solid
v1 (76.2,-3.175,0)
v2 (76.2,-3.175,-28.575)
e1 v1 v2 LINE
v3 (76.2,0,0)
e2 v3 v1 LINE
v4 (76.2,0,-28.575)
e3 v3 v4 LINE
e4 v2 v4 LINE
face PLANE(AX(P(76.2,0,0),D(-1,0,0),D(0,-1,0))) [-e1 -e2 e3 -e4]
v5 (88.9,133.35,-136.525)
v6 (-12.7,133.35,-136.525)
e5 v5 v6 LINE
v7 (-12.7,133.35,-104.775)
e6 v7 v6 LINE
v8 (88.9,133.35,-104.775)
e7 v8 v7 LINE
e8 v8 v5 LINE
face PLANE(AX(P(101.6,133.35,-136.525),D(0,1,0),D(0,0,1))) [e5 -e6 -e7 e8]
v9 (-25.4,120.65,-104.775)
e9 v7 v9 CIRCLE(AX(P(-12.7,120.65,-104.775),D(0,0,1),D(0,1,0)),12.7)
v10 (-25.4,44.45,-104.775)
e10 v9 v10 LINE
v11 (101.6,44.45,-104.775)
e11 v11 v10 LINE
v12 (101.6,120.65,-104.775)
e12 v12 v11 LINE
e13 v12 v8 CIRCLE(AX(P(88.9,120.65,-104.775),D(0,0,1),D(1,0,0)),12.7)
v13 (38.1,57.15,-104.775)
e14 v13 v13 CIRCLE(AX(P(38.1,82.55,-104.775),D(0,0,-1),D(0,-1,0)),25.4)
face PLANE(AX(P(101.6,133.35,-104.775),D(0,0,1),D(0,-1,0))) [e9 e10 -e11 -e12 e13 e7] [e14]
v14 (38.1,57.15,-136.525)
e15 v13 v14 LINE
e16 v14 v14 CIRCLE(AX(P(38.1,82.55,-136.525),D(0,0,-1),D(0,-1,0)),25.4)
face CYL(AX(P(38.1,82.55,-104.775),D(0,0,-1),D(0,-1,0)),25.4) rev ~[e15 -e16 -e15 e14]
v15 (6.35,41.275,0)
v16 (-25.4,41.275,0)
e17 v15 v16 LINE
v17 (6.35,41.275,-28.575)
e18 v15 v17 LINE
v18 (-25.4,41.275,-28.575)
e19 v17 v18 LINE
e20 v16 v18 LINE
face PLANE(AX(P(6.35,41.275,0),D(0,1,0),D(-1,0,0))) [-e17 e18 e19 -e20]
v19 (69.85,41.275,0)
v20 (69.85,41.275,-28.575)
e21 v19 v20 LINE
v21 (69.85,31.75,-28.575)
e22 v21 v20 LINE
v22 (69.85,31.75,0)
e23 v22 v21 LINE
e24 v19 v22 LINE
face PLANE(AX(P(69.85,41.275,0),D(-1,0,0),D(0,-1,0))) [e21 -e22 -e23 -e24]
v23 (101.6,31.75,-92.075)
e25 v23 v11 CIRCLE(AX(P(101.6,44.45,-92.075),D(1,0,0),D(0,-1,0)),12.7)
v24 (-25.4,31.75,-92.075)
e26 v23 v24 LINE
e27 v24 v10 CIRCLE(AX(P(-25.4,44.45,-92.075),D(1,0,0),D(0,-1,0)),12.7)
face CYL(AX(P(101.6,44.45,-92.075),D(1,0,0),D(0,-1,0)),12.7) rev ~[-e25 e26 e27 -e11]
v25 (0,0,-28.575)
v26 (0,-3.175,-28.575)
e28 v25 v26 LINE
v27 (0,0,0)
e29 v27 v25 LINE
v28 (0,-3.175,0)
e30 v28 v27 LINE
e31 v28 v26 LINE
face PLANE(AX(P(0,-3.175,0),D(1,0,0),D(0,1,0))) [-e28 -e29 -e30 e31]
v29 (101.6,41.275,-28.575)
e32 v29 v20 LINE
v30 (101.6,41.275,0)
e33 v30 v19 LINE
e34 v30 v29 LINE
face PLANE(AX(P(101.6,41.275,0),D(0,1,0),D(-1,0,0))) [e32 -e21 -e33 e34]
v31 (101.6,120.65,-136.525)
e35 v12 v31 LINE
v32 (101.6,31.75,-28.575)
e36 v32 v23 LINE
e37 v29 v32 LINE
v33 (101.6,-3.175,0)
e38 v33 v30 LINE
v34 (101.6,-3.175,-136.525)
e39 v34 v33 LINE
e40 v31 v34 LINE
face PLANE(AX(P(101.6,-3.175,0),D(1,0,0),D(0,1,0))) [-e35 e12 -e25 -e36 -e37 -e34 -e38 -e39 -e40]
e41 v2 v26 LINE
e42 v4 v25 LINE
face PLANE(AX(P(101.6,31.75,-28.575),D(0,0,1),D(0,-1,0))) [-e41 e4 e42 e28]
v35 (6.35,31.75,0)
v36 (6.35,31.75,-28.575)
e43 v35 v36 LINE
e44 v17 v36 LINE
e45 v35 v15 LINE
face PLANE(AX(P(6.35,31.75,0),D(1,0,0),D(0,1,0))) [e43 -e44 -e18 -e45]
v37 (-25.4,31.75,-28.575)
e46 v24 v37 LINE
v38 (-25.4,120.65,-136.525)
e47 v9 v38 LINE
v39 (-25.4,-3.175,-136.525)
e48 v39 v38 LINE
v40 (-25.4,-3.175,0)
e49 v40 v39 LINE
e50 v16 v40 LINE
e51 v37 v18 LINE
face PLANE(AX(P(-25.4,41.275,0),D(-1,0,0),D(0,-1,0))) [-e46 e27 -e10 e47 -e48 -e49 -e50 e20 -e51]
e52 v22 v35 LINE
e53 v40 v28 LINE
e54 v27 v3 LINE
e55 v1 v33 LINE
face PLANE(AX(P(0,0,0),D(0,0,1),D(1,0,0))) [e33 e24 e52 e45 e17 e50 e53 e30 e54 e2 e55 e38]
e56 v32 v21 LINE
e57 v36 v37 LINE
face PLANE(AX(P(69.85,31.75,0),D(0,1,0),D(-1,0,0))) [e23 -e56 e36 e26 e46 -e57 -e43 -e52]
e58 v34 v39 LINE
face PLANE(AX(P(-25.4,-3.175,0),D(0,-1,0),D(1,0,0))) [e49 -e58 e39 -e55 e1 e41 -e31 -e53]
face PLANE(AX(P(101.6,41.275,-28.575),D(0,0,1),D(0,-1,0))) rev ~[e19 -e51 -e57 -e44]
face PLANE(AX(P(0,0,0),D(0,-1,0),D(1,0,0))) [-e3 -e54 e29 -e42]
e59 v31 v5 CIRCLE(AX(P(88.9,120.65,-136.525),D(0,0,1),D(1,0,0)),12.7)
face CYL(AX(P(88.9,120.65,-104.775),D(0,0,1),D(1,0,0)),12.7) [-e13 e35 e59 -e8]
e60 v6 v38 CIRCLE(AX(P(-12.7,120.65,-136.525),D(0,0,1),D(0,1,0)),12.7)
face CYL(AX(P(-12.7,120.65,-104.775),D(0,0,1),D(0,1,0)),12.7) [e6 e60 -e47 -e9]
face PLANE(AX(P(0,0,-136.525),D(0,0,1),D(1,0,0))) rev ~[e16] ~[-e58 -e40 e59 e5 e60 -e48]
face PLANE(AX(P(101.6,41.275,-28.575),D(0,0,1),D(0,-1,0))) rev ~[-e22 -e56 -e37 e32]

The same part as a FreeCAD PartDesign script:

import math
import FreeCAD as App
import Part
import Sketcher
from FreeCAD import Vector
Q = App.Units.Quantity

doc = App.newDocument("Part")
params = doc.addObject("Spreadsheet::Sheet", "Params")
for row, (alias, value) in enumerate([
    ("sketch1_width", "3 in"),
    ("sketch1_width2", "1 in"),
    ("sketch1_width3", "2.5 in"),
    ("sketch1_height", "1.75 in"),
    ("sketch1_height2", "0.375 in"),
    ("pad1_length", "5.375 in"),
    ("sketch2_width", "0.375 in"),
    ("sketch2_height", "4.25 in"),
    ("sketch3_height", "1.25 in"),
    ("sketch3_width", "5.375 in"),
    ("pad2_length", "5 in"),
    ("sketch4_radius", "0.5 in"),
    ("sketch4_width", "3.5 in"),
    ("sketch4_height", "2.5 in"),
    ("sketch4_height2", "4.25 in"),
    ("sketch4_width2", "1.375 in"),
    ("pad3_length", "5 in"),
    ("sketch5_radius", "0.5 in"),
    ("sketch6_radius", "0.5 in"),
    ("sketch7_diameter", "2 in"),
    ("hole_diameter", "2 in"),
], start=1):
    params.set(f"A{row}", alias)
    params.set(f"B{row}", "=" + value)
    params.setAlias(f"B{row}", alias)

body = doc.addObject("PartDesign::Body", "Body")

sketch1 = doc.addObject("Sketcher::SketchObject", "Sketch")
body.addObject(sketch1)
sketch1.AttachmentSupport = (doc.XY_Plane, [""])
sketch1.MapMode = "FlatFace"
sketch1.addGeometry(Part.LineSegment(Vector(0, -3.2, 0), Vector(0, 0, 0)), False)
sketch1.addGeometry(Part.LineSegment(Vector(0, 0, 0), Vector(76.2, 0, 0)), False)
sketch1.addGeometry(Part.LineSegment(Vector(76.2, 0, 0), Vector(76.2, -3.2, 0)), False)
sketch1.addGeometry(Part.LineSegment(Vector(76.2, -3.2, 0), Vector(101.6, -3.2, 0)), False)
sketch1.addGeometry(Part.LineSegment(Vector(101.6, -3.2, 0), Vector(101.6, 41.3, 0)), False)
sketch1.addGeometry(Part.LineSegment(Vector(101.6, 41.3, 0), Vector(69.8, 41.3, 0)), False)
sketch1.addGeometry(Part.LineSegment(Vector(69.8, 41.3, 0), Vector(69.8, 31.8, 0)), False)
sketch1.addGeometry(Part.LineSegment(Vector(69.8, 31.8, 0), Vector(6.3, 31.8, 0)), False)
sketch1.addGeometry(Part.LineSegment(Vector(6.3, 31.8, 0), Vector(6.3, 41.3, 0)), False)
sketch1.addGeometry(Part.LineSegment(Vector(6.3, 41.3, 0), Vector(-25.4, 41.3, 0)), False)
sketch1.addGeometry(Part.LineSegment(Vector(-25.4, 41.3, 0), Vector(-25.4, -3.2, 0)), False)
sketch1.addGeometry(Part.LineSegment(Vector(-25.4, -3.2, 0), Vector(0, -3.2, 0)), False)
sketch1.addConstraint(Sketcher.Constraint("Coincident", 0, 2, 1, 1))
sketch1.addConstraint(Sketcher.Constraint("Coincident", 1, 2, 2, 1))
sketch1.addConstraint(Sketcher.Constraint("Coincident", 2, 2, 3, 1))
sketch1.addConstraint(Sketcher.Constraint("Coincident", 3, 2, 4, 1))
sketch1.addConstraint(Sketcher.Constraint("Coincident", 4, 2, 5, 1))
sketch1.addConstraint(Sketcher.Constraint("Coincident", 5, 2, 6, 1))
sketch1.addConstraint(Sketcher.Constraint("Coincident", 6, 2, 7, 1))
sketch1.addConstraint(Sketcher.Constraint("Coincident", 7, 2, 8, 1))
sketch1.addConstraint(Sketcher.Constraint("Coincident", 8, 2, 9, 1))
sketch1.addConstraint(Sketcher.Constraint("Coincident", 9, 2, 10, 1))
sketch1.addConstraint(Sketcher.Constraint("Coincident", 10, 2, 11, 1))
sketch1.addConstraint(Sketcher.Constraint("Coincident", 11, 2, 0, 1))
sketch1.addConstraint(Sketcher.Constraint("Vertical", 0))
sketch1.addConstraint(Sketcher.Constraint("Horizontal", 1))
sketch1.addConstraint(Sketcher.Constraint("Vertical", 2))
sketch1.addConstraint(Sketcher.Constraint("Horizontal", 3))
sketch1.addConstraint(Sketcher.Constraint("Vertical", 4))
sketch1.addConstraint(Sketcher.Constraint("Horizontal", 5))
sketch1.addConstraint(Sketcher.Constraint("Vertical", 6))
sketch1.addConstraint(Sketcher.Constraint("Horizontal", 7))
sketch1.addConstraint(Sketcher.Constraint("Vertical", 8))
sketch1.addConstraint(Sketcher.Constraint("Horizontal", 9))
sketch1.addConstraint(Sketcher.Constraint("Vertical", 10))
sketch1.addConstraint(Sketcher.Constraint("Horizontal", 11))
sketch1.addConstraint(Sketcher.Constraint("Coincident", 0, 2, -1, 1))
sketch1.addConstraint(Sketcher.Constraint("Horizontal", 5, 2, 8, 2))
sketch1.addConstraint(Sketcher.Constraint("Horizontal", 3, 2, 10, 2))
sketch1.addConstraint(Sketcher.Constraint("Equal", 5, 9))
sketch1.addConstraint(Sketcher.Constraint("Equal", 3, 11))
sketch1.addConstraint(Sketcher.Constraint("DistanceX", 1, 1, 1, 2, Q("3 in")))
sketch1.addConstraint(Sketcher.Constraint("DistanceX", 3, 1, 3, 2, Q("1 in")))
sketch1.addConstraint(Sketcher.Constraint("DistanceX", 7, 2, 7, 1, Q("2.5 in")))
sketch1.addConstraint(Sketcher.Constraint("DistanceY", 4, 1, 4, 2, Q("1.75 in")))
sketch1.addConstraint(Sketcher.Constraint("DistanceY", 6, 2, 6, 1, Q("0.375 in")))
sketch1.addConstraint(Sketcher.Constraint("DistanceY", -1, 1, 6, 2, Q("1.25 in")))
sketch1.setExpression("Constraints[29]", "Params.sketch1_width")
sketch1.setExpression("Constraints[30]", "Params.sketch1_width2")
sketch1.setExpression("Constraints[31]", "Params.sketch1_width3")
sketch1.setExpression("Constraints[32]", "Params.sketch1_height")
sketch1.setExpression("Constraints[33]", "Params.sketch1_height2")
pad1 = doc.addObject("PartDesign::Pad", "Pad")
body.addObject(pad1)
pad1.Profile = sketch1
pad1.setExpression("Length", "Params.pad1_length")
pad1.Reversed = True

sketch2 = doc.addObject("Sketcher::SketchObject", "Sketch001")
body.addObject(sketch2)
sketch2.AttachmentSupport = (doc.YZ_Plane, [""])
sketch2.MapMode = "FlatFace"
sketch2.AttachmentOffset = App.Placement(Vector(0, 0, 4 * 25.4), App.Rotation())
sketch2.addGeometry(Part.LineSegment(Vector(41, -137, 0), Vector(41, -29, 0)), False)
sketch2.addGeometry(Part.LineSegment(Vector(41, -29, 0), Vector(32, -29, 0)), False)
sketch2.addGeometry(Part.LineSegment(Vector(32, -29, 0), Vector(32, -137, 0)), False)
sketch2.addGeometry(Part.LineSegment(Vector(32, -137, 0), Vector(41, -137, 0)), False)
sketch2.addConstraint(Sketcher.Constraint("Coincident", 0, 2, 1, 1))
sketch2.addConstraint(Sketcher.Constraint("Coincident", 1, 2, 2, 1))
sketch2.addConstraint(Sketcher.Constraint("Coincident", 2, 2, 3, 1))
sketch2.addConstraint(Sketcher.Constraint("Coincident", 3, 2, 0, 1))
sketch2.addConstraint(Sketcher.Constraint("Vertical", 0))
sketch2.addConstraint(Sketcher.Constraint("Horizontal", 1))
sketch2.addConstraint(Sketcher.Constraint("Vertical", 2))
sketch2.addConstraint(Sketcher.Constraint("Horizontal", 3))
sketch2.addConstraint(Sketcher.Constraint("DistanceX", 1, 2, 1, 1, Q("0.375 in")))
sketch2.addConstraint(Sketcher.Constraint("DistanceY", 0, 2, -1, 1, Q("1.125 in")))
sketch2.addConstraint(Sketcher.Constraint("DistanceY", 0, 1, 0, 2, Q("4.25 in")))
sketch2.addConstraint(Sketcher.Constraint("DistanceX", -1, 1, 1, 2, Q("1.25 in")))
sketch2.setExpression("Constraints[8]", "Params.sketch2_width")
sketch2.setExpression("Constraints[10]", "Params.sketch2_height")
pocket1 = doc.addObject("PartDesign::Pocket", "Pocket")
body.addObject(pocket1)
pocket1.Profile = sketch2
pocket1.Type = "ThroughAll"

sketch3 = doc.addObject("Sketcher::SketchObject", "Sketch002")
body.addObject(sketch3)
sketch3.AttachmentSupport = (doc.YZ_Plane, [""])
sketch3.MapMode = "FlatFace"
sketch3.AttachmentOffset = App.Placement(Vector(0, 0, 4 * 25.4), App.Rotation())
sketch3.addGeometry(Part.LineSegment(Vector(-3, -105, 0), Vector(-3, -137, 0)), False)
sketch3.addGeometry(Part.LineSegment(Vector(-3, -137, 0), Vector(133, -137, 0)), False)
sketch3.addGeometry(Part.LineSegment(Vector(133, -137, 0), Vector(133, -105, 0)), False)
sketch3.addGeometry(Part.LineSegment(Vector(133, -105, 0), Vector(-3, -105, 0)), False)
sketch3.addConstraint(Sketcher.Constraint("Coincident", 0, 2, 1, 1))
sketch3.addConstraint(Sketcher.Constraint("Coincident", 1, 2, 2, 1))
sketch3.addConstraint(Sketcher.Constraint("Coincident", 2, 2, 3, 1))
sketch3.addConstraint(Sketcher.Constraint("Coincident", 3, 2, 0, 1))
sketch3.addConstraint(Sketcher.Constraint("Vertical", 0))
sketch3.addConstraint(Sketcher.Constraint("Horizontal", 1))
sketch3.addConstraint(Sketcher.Constraint("Vertical", 2))
sketch3.addConstraint(Sketcher.Constraint("Horizontal", 3))
sketch3.addConstraint(Sketcher.Constraint("DistanceY", 0, 2, 0, 1, Q("1.25 in")))
sketch3.addConstraint(Sketcher.Constraint("DistanceX", 1, 1, 1, 2, Q("5.375 in")))
sketch3.addConstraint(Sketcher.Constraint("DistanceY", 0, 2, -1, 1, Q("5.375 in")))
sketch3.addConstraint(Sketcher.Constraint("DistanceX", -1, 1, 1, 2, Q("5.25 in")))
sketch3.setExpression("Constraints[8]", "Params.sketch3_height")
sketch3.setExpression("Constraints[9]", "Params.sketch3_width")
pad2 = doc.addObject("PartDesign::Pad", "Pad001")
body.addObject(pad2)
pad2.Profile = sketch3
pad2.setExpression("Length", "Params.pad2_length")
pad2.Reversed = True

sketch4 = doc.addObject("Sketcher::SketchObject", "Sketch003")
body.addObject(sketch4)
sketch4.AttachmentSupport = (doc.YZ_Plane, [""])
sketch4.MapMode = "FlatFace"
sketch4.AttachmentOffset = App.Placement(Vector(0, 0, 4 * 25.4), App.Rotation())
sketch4.addGeometry(Part.LineSegment(Vector(32, -92, 0), Vector(32, -29, 0)), False)
sketch4.addGeometry(Part.LineSegment(Vector(32, -29, 0), Vector(-3, -29, 0)), False)
sketch4.addGeometry(Part.LineSegment(Vector(-3, -29, 0), Vector(-3, -137, 0)), False)
sketch4.addGeometry(Part.LineSegment(Vector(-3, -137, 0), Vector(133, -137, 0)), False)
sketch4.addGeometry(Part.LineSegment(Vector(133, -137, 0), Vector(133, -105, 0)), False)
sketch4.addGeometry(Part.LineSegment(Vector(133, -105, 0), Vector(44, -105, 0)), False)
sketch4.addGeometry(Part.ArcOfCircle(Part.Circle(Vector(44, -92, 0), Vector(0, 0, 1), 13), math.radians(180), math.radians(270)), False)
sketch4.addConstraint(Sketcher.Constraint("Coincident", 0, 2, 1, 1))
sketch4.addConstraint(Sketcher.Constraint("Coincident", 1, 2, 2, 1))
sketch4.addConstraint(Sketcher.Constraint("Coincident", 2, 2, 3, 1))
sketch4.addConstraint(Sketcher.Constraint("Coincident", 3, 2, 4, 1))
sketch4.addConstraint(Sketcher.Constraint("Coincident", 4, 2, 5, 1))
sketch4.addConstraint(Sketcher.Constraint("Tangent", 5, 2, 6, 2))
sketch4.addConstraint(Sketcher.Constraint("Tangent", 6, 1, 0, 1))
sketch4.addConstraint(Sketcher.Constraint("Vertical", 0))
sketch4.addConstraint(Sketcher.Constraint("Horizontal", 1))
sketch4.addConstraint(Sketcher.Constraint("Vertical", 2))
sketch4.addConstraint(Sketcher.Constraint("Horizontal", 3))
sketch4.addConstraint(Sketcher.Constraint("Vertical", 4))
sketch4.addConstraint(Sketcher.Constraint("Horizontal", 5))
sketch4.addConstraint(Sketcher.Constraint("Radius", 6, Q("0.5 in")))
sketch4.addConstraint(Sketcher.Constraint("DistanceX", 5, 2, 5, 1, Q("3.5 in")))
sketch4.addConstraint(Sketcher.Constraint("DistanceY", 0, 1, 0, 2, Q("2.5 in")))
sketch4.addConstraint(Sketcher.Constraint("DistanceY", 2, 2, 2, 1, Q("4.25 in")))
sketch4.addConstraint(Sketcher.Constraint("DistanceX", 1, 2, 1, 1, Q("1.375 in")))
sketch4.addConstraint(Sketcher.Constraint("DistanceX", -1, 1, 6, 3, Q("1.75 in")))
sketch4.addConstraint(Sketcher.Constraint("DistanceY", 6, 3, -1, 1, Q("3.625 in")))
sketch4.setExpression("Constraints[13]", "Params.sketch4_radius")
sketch4.setExpression("Constraints[14]", "Params.sketch4_width")
sketch4.setExpression("Constraints[15]", "Params.sketch4_height")
sketch4.setExpression("Constraints[16]", "Params.sketch4_height2")
sketch4.setExpression("Constraints[17]", "Params.sketch4_width2")
pad3 = doc.addObject("PartDesign::Pad", "Pad002")
body.addObject(pad3)
pad3.Profile = sketch4
pad3.setExpression("Length", "Params.pad3_length")
pad3.Reversed = True

sketch5 = doc.addObject("Sketcher::SketchObject", "Sketch004")
body.addObject(sketch5)
sketch5.AttachmentSupport = (doc.XY_Plane, [""])
sketch5.MapMode = "FlatFace"
sketch5.AttachmentOffset = App.Placement(Vector(0, 0, -4.125 * 25.4), App.Rotation())
sketch5.addGeometry(Part.LineSegment(Vector(102, 133, 0), Vector(89, 133, 0)), False)
sketch5.addGeometry(Part.ArcOfCircle(Part.Circle(Vector(89, 121, 0), Vector(0, 0, 1), 13), math.radians(0), math.radians(90)), False)
sketch5.addGeometry(Part.LineSegment(Vector(102, 121, 0), Vector(102, 133, 0)), False)
sketch5.addConstraint(Sketcher.Constraint("Tangent", 0, 2, 1, 2))
sketch5.addConstraint(Sketcher.Constraint("Tangent", 1, 1, 2, 1))
sketch5.addConstraint(Sketcher.Constraint("Coincident", 2, 2, 0, 1))
sketch5.addConstraint(Sketcher.Constraint("Horizontal", 0))
sketch5.addConstraint(Sketcher.Constraint("Vertical", 2))
sketch5.addConstraint(Sketcher.Constraint("Radius", 1, Q("0.5 in")))
sketch5.addConstraint(Sketcher.Constraint("DistanceX", -1, 1, 1, 1, Q("4 in")))
sketch5.addConstraint(Sketcher.Constraint("DistanceY", -1, 1, 1, 3, Q("4.75 in")))
sketch5.setExpression("Constraints[5]", "Params.sketch5_radius")
pocket2 = doc.addObject("PartDesign::Pocket", "Pocket001")
body.addObject(pocket2)
pocket2.Profile = sketch5
pocket2.Type = "ThroughAll"

sketch6 = doc.addObject("Sketcher::SketchObject", "Sketch005")
body.addObject(sketch6)
sketch6.AttachmentSupport = (doc.XY_Plane, [""])
sketch6.MapMode = "FlatFace"
sketch6.AttachmentOffset = App.Placement(Vector(0, 0, -4.125 * 25.4), App.Rotation())
sketch6.addGeometry(Part.ArcOfCircle(Part.Circle(Vector(-13, 121, 0), Vector(0, 0, 1), 13), math.radians(90), math.radians(180)), False)
sketch6.addGeometry(Part.LineSegment(Vector(-13, 133, 0), Vector(-25, 133, 0)), False)
sketch6.addGeometry(Part.LineSegment(Vector(-25, 133, 0), Vector(-25, 121, 0)), False)
sketch6.addConstraint(Sketcher.Constraint("Tangent", 0, 1, 1, 1))
sketch6.addConstraint(Sketcher.Constraint("Coincident", 1, 2, 2, 1))
sketch6.addConstraint(Sketcher.Constraint("Tangent", 2, 2, 0, 2))
sketch6.addConstraint(Sketcher.Constraint("Horizontal", 1))
sketch6.addConstraint(Sketcher.Constraint("Vertical", 2))
sketch6.addConstraint(Sketcher.Constraint("Radius", 0, Q("0.5 in")))
sketch6.addConstraint(Sketcher.Constraint("DistanceX", 0, 3, -1, 1, Q("0.5 in")))
sketch6.addConstraint(Sketcher.Constraint("DistanceY", -1, 1, 0, 3, Q("4.75 in")))
sketch6.setExpression("Constraints[5]", "Params.sketch6_radius")
pocket3 = doc.addObject("PartDesign::Pocket", "Pocket002")
body.addObject(pocket3)
pocket3.Profile = sketch6
pocket3.Type = "ThroughAll"

sketch7 = doc.addObject("Sketcher::SketchObject", "Sketch006")
body.addObject(sketch7)
sketch7.AttachmentSupport = (doc.XY_Plane, [""])
sketch7.MapMode = "FlatFace"
sketch7.AttachmentOffset = App.Placement(Vector(0, 0, -4.125 * 25.4), App.Rotation())
sketch7.addGeometry(Part.Circle(Vector(38, 83, 0), Vector(0, 0, 1), 25), False)
sketch7.addGeometry(Part.Circle(Vector(38, 83, 0), Vector(0, 0, 1), 25), False)
sketch7.addConstraint(Sketcher.Constraint("Coincident", 1, 3, 0, 3))
sketch7.addConstraint(Sketcher.Constraint("Equal", 0, 1))
sketch7.addConstraint(Sketcher.Constraint("Diameter", 0, Q("2 in")))
sketch7.addConstraint(Sketcher.Constraint("DistanceX", -1, 1, 0, 3, Q("1.5 in")))
sketch7.addConstraint(Sketcher.Constraint("DistanceY", -1, 1, 0, 3, Q("3.25 in")))
sketch7.setExpression("Constraints[2]", "Params.sketch7_diameter")
doc.recompute()
hole = doc.addObject("PartDesign::Hole", "Hole")
body.addObject(hole)
hole.Profile = sketch7
hole.ThreadType = "None"
hole.setExpression("Diameter", "Params.hole_diameter")
hole.DepthType = "ThroughAll"

doc.recompute()
